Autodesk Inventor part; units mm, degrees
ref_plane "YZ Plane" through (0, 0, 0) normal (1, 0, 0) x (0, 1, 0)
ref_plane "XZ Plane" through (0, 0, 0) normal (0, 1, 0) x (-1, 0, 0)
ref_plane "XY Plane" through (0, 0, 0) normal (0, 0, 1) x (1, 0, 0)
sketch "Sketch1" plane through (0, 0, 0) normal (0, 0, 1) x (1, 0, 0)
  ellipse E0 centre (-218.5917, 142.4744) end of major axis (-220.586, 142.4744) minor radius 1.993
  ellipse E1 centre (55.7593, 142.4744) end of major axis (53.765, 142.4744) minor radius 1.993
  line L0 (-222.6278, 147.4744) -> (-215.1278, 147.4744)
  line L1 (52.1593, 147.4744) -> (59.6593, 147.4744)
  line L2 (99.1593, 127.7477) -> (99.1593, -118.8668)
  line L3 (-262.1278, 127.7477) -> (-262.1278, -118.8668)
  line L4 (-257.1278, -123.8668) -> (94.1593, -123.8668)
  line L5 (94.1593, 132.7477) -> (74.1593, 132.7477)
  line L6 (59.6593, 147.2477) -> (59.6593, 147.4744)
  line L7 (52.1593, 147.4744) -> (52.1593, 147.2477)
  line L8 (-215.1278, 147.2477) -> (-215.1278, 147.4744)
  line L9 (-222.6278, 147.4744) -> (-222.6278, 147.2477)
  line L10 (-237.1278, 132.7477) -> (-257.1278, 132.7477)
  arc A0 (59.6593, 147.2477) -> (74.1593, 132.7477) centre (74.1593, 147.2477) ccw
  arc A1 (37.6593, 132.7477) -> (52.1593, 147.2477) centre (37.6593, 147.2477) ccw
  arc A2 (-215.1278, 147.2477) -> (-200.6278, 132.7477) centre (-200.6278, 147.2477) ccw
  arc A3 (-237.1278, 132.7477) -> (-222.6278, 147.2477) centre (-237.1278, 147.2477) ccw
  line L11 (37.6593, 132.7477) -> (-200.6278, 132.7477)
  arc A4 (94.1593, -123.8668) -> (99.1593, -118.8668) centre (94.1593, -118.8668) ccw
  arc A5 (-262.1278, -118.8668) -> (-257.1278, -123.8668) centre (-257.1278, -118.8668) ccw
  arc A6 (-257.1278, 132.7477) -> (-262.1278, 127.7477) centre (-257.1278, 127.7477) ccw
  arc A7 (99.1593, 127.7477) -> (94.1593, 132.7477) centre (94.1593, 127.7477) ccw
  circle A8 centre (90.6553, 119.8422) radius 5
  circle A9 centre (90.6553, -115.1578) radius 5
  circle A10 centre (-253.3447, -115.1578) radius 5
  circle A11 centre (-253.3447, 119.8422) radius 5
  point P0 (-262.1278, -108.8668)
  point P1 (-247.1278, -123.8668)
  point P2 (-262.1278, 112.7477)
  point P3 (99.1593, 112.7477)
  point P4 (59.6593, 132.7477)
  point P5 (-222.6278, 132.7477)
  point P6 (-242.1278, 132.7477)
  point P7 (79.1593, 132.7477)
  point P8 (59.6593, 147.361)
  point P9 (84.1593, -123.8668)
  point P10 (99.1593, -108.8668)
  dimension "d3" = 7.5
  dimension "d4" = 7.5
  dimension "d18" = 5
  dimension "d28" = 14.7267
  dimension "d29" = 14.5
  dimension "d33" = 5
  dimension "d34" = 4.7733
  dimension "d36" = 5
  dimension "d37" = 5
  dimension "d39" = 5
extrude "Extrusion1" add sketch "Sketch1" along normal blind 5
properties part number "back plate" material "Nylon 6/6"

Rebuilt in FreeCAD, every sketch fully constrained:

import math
import FreeCAD as App
import Part
import Sketcher
from FreeCAD import Vector
Q = App.Units.Quantity

doc = App.newDocument("Part")
params = doc.addObject("Spreadsheet::Sheet", "Params")
for row, (alias, value) in enumerate([
    ("sketch1_diameter", "10 mm"),
    ("sketch1_radius", "14.5 mm"),
    ("sketch1_width", "7.5 mm"),
    ("sketch1_width2", "20 mm"),
    ("pad1_length", "5 mm"),
], start=1):
    params.set(f"A{row}", alias)
    params.set(f"B{row}", "=" + value)
    params.setAlias(f"B{row}", alias)

body = doc.addObject("PartDesign::Body", "Body")

sketch1 = doc.addObject("Sketcher::SketchObject", "Sketch")
body.addObject(sketch1)
sketch1.AttachmentSupport = (doc.XY_Plane, [""])
sketch1.MapMode = "FlatFace"
sketch1.addGeometry([
    Part.LineSegment(Vector(-215.1278, 147.4744, 0), Vector(-222.6278, 147.4744, 0)),
    Part.LineSegment(Vector(-222.6278, 147.4744, 0), Vector(-222.6278, 147.2477, 0)),
    Part.ArcOfCircle(Part.Circle(Vector(-237.1278, 147.2477, 0), Vector(0, 0, 1), 14.5), math.radians(-90), math.radians(0)),
    Part.LineSegment(Vector(-237.1278, 132.7477, 0), Vector(-257.1278, 132.7477, 0)),
    Part.ArcOfCircle(Part.Circle(Vector(-257.1278, 127.7477, 0), Vector(0, 0, 1), 5), math.radians(90), math.radians(180)),
    Part.LineSegment(Vector(-262.1278, 127.7477, 0), Vector(-262.1278, -118.8668, 0)),
    Part.ArcOfCircle(Part.Circle(Vector(-257.1278, -118.8668, 0), Vector(0, 0, 1), 5), math.radians(180), math.radians(270)),
    Part.LineSegment(Vector(-257.1278, -123.8668, 0), Vector(94.1593, -123.8668, 0)),
    Part.ArcOfCircle(Part.Circle(Vector(94.1593, -118.8668, 0), Vector(0, 0, 1), 5), math.radians(-90), math.radians(0)),
    Part.LineSegment(Vector(99.1593, -118.8668, 0), Vector(99.1593, 127.7477, 0)),
    Part.ArcOfCircle(Part.Circle(Vector(94.1593, 127.7477, 0), Vector(0, 0, 1), 5), math.radians(0), math.radians(90)),
    Part.LineSegment(Vector(94.1593, 132.7477, 0), Vector(74.1593, 132.7477, 0)),
    Part.ArcOfCircle(Part.Circle(Vector(74.1593, 147.2477, 0), Vector(0, 0, 1), 14.5), math.radians(180), math.radians(270)),
    Part.LineSegment(Vector(59.6593, 147.2477, 0), Vector(59.6593, 147.4744, 0)),
    Part.LineSegment(Vector(59.6593, 147.4744, 0), Vector(52.1593, 147.4744, 0)),
    Part.LineSegment(Vector(52.1593, 147.4744, 0), Vector(52.1593, 147.2477, 0)),
    Part.ArcOfCircle(Part.Circle(Vector(37.6593, 147.2477, 0), Vector(0, 0, 1), 14.5), math.radians(-90), math.radians(0)),
    Part.LineSegment(Vector(37.6593, 132.7477, 0), Vector(-200.6278, 132.7477, 0)),
    Part.ArcOfCircle(Part.Circle(Vector(-200.6278, 147.2477, 0), Vector(0, 0, 1), 14.5), math.radians(180), math.radians(270)),
    Part.LineSegment(Vector(-215.1278, 147.2477, 0), Vector(-215.1278, 147.4744, 0)),
    Part.Circle(Vector(-253.3447, -115.1578, 0), Vector(0, 0, 1), 5),
    Part.Circle(Vector(90.6553, -115.1578, 0), Vector(0, 0, 1), 5),
    Part.Circle(Vector(-253.3447, 119.8422, 0), Vector(0, 0, 1), 5),
    Part.Ellipse(Vector(-220.586, 142.4744, 0), Vector(-218.5917, 140.4814, 0), Vector(-218.5917, 142.4744, 0)),
    Part.Circle(Vector(90.6553, 119.8422, 0), Vector(0, 0, 1), 5),
    Part.Ellipse(Vector(53.765, 142.4744, 0), Vector(55.7593, 140.4814, 0), Vector(55.7593, 142.4744, 0)),
], False)
sketch1.addConstraint([
    Sketcher.Constraint("Block", 23),
    Sketcher.Constraint("Block", 25),
    Sketcher.Constraint("Coincident", 0, 2, 1, 1),
    Sketcher.Constraint("Tangent", 1, 2, 2, 2),
    Sketcher.Constraint("Tangent", 2, 1, 3, 1),
    Sketcher.Constraint("Tangent", 3, 2, 4, 1),
    Sketcher.Constraint("Tangent", 4, 2, 5, 1),
    Sketcher.Constraint("Tangent", 5, 2, 6, 1),
    Sketcher.Constraint("Tangent", 6, 2, 7, 1),
    Sketcher.Constraint("Tangent", 7, 2, 8, 1),
    Sketcher.Constraint("Tangent", 8, 2, 9, 1),
    Sketcher.Constraint("Tangent", 9, 2, 10, 1),
    Sketcher.Constraint("Tangent", 10, 2, 11, 1),
    Sketcher.Constraint("Tangent", 11, 2, 12, 2),
    Sketcher.Constraint("Tangent", 12, 1, 13, 1),
    Sketcher.Constraint("Coincident", 13, 2, 14, 1),
    Sketcher.Constraint("Coincident", 14, 2, 15, 1),
    Sketcher.Constraint("Tangent", 15, 2, 16, 2),
    Sketcher.Constraint("Tangent", 16, 1, 17, 1),
    Sketcher.Constraint("Tangent", 17, 2, 18, 2),
    Sketcher.Constraint("Tangent", 18, 1, 19, 1),
    Sketcher.Constraint("Coincident", 19, 2, 0, 1),
    Sketcher.Constraint("Horizontal", 0),
    Sketcher.Constraint("Vertical", 1),
    Sketcher.Constraint("Horizontal", 3),
    Sketcher.Constraint("Vertical", 5),
    Sketcher.Constraint("Horizontal", 7),
    Sketcher.Constraint("Vertical", 9),
    Sketcher.Constraint("Horizontal", 11),
    Sketcher.Constraint("Vertical", 13),
    Sketcher.Constraint("Horizontal", 14),
    Sketcher.Constraint("Vertical", 15),
    Sketcher.Constraint("Horizontal", 17),
    Sketcher.Constraint("Vertical", 19),
    Sketcher.Constraint("Equal", 4, 6),
    Sketcher.Constraint("Equal", 6, 8),
    Sketcher.Constraint("Equal", 8, 10),
    Sketcher.Constraint("Equal", 2, 12),
    Sketcher.Constraint("Equal", 12, 16),
    Sketcher.Constraint("Equal", 16, 18),
    Sketcher.Constraint("Equal", 10, 20),
    Sketcher.Constraint("Equal", 20, 21),
    Sketcher.Constraint("Equal", 21, 22),
    Sketcher.Constraint("Equal", 22, 24),
    Sketcher.Constraint("Horizontal", 4, 3, 10, 3),
    Sketcher.Constraint("Horizontal", 12, 3, 16, 3),
    Sketcher.Constraint("Horizontal", 20, 3, 21, 3),
    Sketcher.Constraint("Horizontal", 22, 3, 24, 3),
    Sketcher.Constraint("Horizontal", 0, 2, 13, 2),
    Sketcher.Constraint("Vertical", 20, 3, 22, 3),
    Sketcher.Constraint("Vertical", 21, 3, 24, 3),
    Sketcher.Constraint("Equal", 3, 11),
    Sketcher.Constraint("Equal", 0, 14),
    Sketcher.Constraint("Diameter", 20, Q("10 mm")),
    Sketcher.Constraint("Radius", 2, Q("14.5 mm")),
    Sketcher.Constraint("DistanceX", 0, 2, 0, 1, Q("7.5 mm")),
    Sketcher.Constraint("DistanceX", 3, 2, 3, 1, Q("20 mm")),
    Sketcher.Constraint("DistanceX", 20, 3, 21, 3, Q("344 mm")),
    Sketcher.Constraint("DistanceY", 20, 3, 22, 3, Q("235 mm")),
    Sketcher.Constraint("DistanceY", 2, 1, 0, 2, Q("14.7267 mm")),
    Sketcher.Constraint("DistanceX", 7, 1, 7, 2, Q("351.287 mm")),
    Sketcher.Constraint("DistanceY", 5, 2, 5, 1, Q("246.6145 mm")),
    Sketcher.Constraint("DistanceX", 6, 3, 20, 3, Q("3.783 mm")),
    Sketcher.Constraint("DistanceY", 6, 3, 20, 3, Q("3.709 mm")),
    Sketcher.Constraint("DistanceX", 2, 3, -1, 1, Q("237.1278 mm")),
    Sketcher.Constraint("DistanceY", -1, 1, 2, 3, Q("147.2477 mm")),
])
sketch1.setExpression("Constraints[53]", "Params.sketch1_diameter")
sketch1.setExpression("Constraints[54]", "Params.sketch1_radius")
sketch1.setExpression("Constraints[55]", "Params.sketch1_width")
sketch1.setExpression("Constraints[56]", "Params.sketch1_width2")
pad1 = doc.addObject("PartDesign::Pad", "Pad")
body.addObject(pad1)
pad1.Profile = sketch1
pad1.setExpression("Length", "Params.pad1_length")

doc.recompute()
